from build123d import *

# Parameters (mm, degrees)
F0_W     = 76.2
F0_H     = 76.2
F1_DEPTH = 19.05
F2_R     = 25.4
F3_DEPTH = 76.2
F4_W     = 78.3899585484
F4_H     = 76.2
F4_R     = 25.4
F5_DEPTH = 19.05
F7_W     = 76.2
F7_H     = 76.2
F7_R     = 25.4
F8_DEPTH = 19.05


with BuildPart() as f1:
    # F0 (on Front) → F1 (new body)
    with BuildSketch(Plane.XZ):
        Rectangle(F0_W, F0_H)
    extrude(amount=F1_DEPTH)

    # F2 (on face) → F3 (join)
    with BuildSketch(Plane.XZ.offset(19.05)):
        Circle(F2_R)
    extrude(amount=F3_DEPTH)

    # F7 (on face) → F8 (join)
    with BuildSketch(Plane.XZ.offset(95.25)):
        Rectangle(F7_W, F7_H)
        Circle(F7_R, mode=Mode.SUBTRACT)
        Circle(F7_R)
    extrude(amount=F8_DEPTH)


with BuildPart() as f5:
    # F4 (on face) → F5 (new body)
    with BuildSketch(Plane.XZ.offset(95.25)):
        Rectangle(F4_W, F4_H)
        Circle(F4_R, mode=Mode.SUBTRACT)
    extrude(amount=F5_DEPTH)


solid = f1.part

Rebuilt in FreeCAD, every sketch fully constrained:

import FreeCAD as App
import Part
import Sketcher

V = App.Vector
Q = App.Units.Quantity

doc = App.newDocument("Part")
body = doc.addObject("PartDesign::Body", "Body")

sketch1 = doc.addObject("Sketcher::SketchObject", "Sketch")
body.addObject(sketch1)
sketch1.AttachmentSupport = (doc.XZ_Plane, [""])
sketch1.MapMode = "FlatFace"
sketch1.addGeometry(Part.LineSegment(V(-38, 38, 0), V(-38, -38, 0)), False)
sketch1.addGeometry(Part.LineSegment(V(-38, -38, 0), V(38, -38, 0)), False)
sketch1.addGeometry(Part.LineSegment(V(38, -38, 0), V(38, 38, 0)), False)
sketch1.addGeometry(Part.LineSegment(V(38, 38, 0), V(-38, 38, 0)), False)
sketch1.addConstraint(Sketcher.Constraint("Coincident", 0, 2, 1, 1))
sketch1.addConstraint(Sketcher.Constraint("Coincident", 1, 2, 2, 1))
sketch1.addConstraint(Sketcher.Constraint("Coincident", 2, 2, 3, 1))
sketch1.addConstraint(Sketcher.Constraint("Coincident", 3, 2, 0, 1))
sketch1.addConstraint(Sketcher.Constraint("Vertical", 0))
sketch1.addConstraint(Sketcher.Constraint("Horizontal", 1))
sketch1.addConstraint(Sketcher.Constraint("Vertical", 2))
sketch1.addConstraint(Sketcher.Constraint("Horizontal", 3))
sketch1.addConstraint(Sketcher.Constraint("Symmetric", 0, 2, 2, 2, -1, 1))
sketch1.addConstraint(Sketcher.Constraint("Equal", 3, 0))
sketch1.addConstraint(Sketcher.Constraint("DistanceX", 1, 1, 1, 2, Q("3 in")))
pad1 = doc.addObject("PartDesign::Pad", "Pad")
body.addObject(pad1)
pad1.Profile = sketch1
pad1.Length = Q("0.75 in")

sketch2 = doc.addObject("Sketcher::SketchObject", "Sketch001")
body.addObject(sketch2)
sketch2.AttachmentSupport = (doc.XZ_Plane, [""])
sketch2.MapMode = "FlatFace"
sketch2.AttachmentOffset = App.Placement(V(0, 0, 0.75 * 25.4), App.Rotation())
sketch2.addGeometry(Part.Circle(V(0, 0, 0), V(0, 0, 1), 25), False)
sketch2.addConstraint(Sketcher.Constraint("Coincident", 0, 3, -1, 1))
sketch2.addConstraint(Sketcher.Constraint("Diameter", 0, Q("2 in")))
pad2 = doc.addObject("PartDesign::Pad", "Pad001")
body.addObject(pad2)
pad2.Profile = sketch2
pad2.Length = Q("3 in")

sketch3 = doc.addObject("Sketcher::SketchObject", "Sketch002")
body.addObject(sketch3)
sketch3.AttachmentSupport = (doc.XZ_Plane, [""])
sketch3.MapMode = "FlatFace"
sketch3.AttachmentOffset = App.Placement(V(0, 0, 3.75 * 25.4), App.Rotation())
sketch3.addGeometry(Part.LineSegment(V(-38, 38, 0), V(-38, -38, 0)), False)
sketch3.addGeometry(Part.LineSegment(V(-38, -38, 0), V(38, -38, 0)), False)
sketch3.addGeometry(Part.LineSegment(V(38, -38, 0), V(38, 38, 0)), False)
sketch3.addGeometry(Part.LineSegment(V(38, 38, 0), V(-38, 38, 0)), False)
sketch3.addConstraint(Sketcher.Constraint("Coincident", 0, 2, 1, 1))
sketch3.addConstraint(Sketcher.Constraint("Coincident", 1, 2, 2, 1))
sketch3.addConstraint(Sketcher.Constraint("Coincident", 2, 2, 3, 1))
sketch3.addConstraint(Sketcher.Constraint("Coincident", 3, 2, 0, 1))
sketch3.addConstraint(Sketcher.Constraint("Vertical", 0))
sketch3.addConstraint(Sketcher.Constraint("Horizontal", 1))
sketch3.addConstraint(Sketcher.Constraint("Vertical", 2))
sketch3.addConstraint(Sketcher.Constraint("Horizontal", 3))
sketch3.addConstraint(Sketcher.Constraint("Symmetric", 0, 2, 2, 2, -1, 1))
sketch3.addConstraint(Sketcher.Constraint("Equal", 3, 0))
sketch3.addConstraint(Sketcher.Constraint("DistanceX", 1, 1, 1, 2, Q("3 in")))
pad3 = doc.addObject("PartDesign::Pad", "Pad002")
body.addObject(pad3)
pad3.Profile = sketch3
pad3.Length = Q("0.75 in")
body2 = doc.addObject("PartDesign::Body", "Body001")

sketch4 = doc.addObject("Sketcher::SketchObject", "Sketch003")
body2.addObject(sketch4)
sketch4.AttachmentSupport = (doc.getObject("XZ_Plane001"), [""])
sketch4.MapMode = "FlatFace"
sketch4.AttachmentOffset = App.Placement(V(0, 0, 3.75 * 25.4), App.Rotation())
sketch4.addGeometry(Part.LineSegment(V(-39, 38, 0), V(-39, -38, 0)), False)
sketch4.addGeometry(Part.LineSegment(V(-39, -38, 0), V(39, -38, 0)), False)
sketch4.addGeometry(Part.LineSegment(V(39, -38, 0), V(39, 38, 0)), False)
sketch4.addGeometry(Part.LineSegment(V(39, 38, 0), V(-39, 38, 0)), False)
sketch4.addGeometry(Part.Circle(V(0, 0, 0), V(0, 0, 1), 25), False)
sketch4.addConstraint(Sketcher.Constraint("Coincident", 0, 2, 1, 1))
sketch4.addConstraint(Sketcher.Constraint("Coincident", 1, 2, 2, 1))
sketch4.addConstraint(Sketcher.Constraint("Coincident", 2, 2, 3, 1))
sketch4.addConstraint(Sketcher.Constraint("Coincident", 3, 2, 0, 1))
sketch4.addConstraint(Sketcher.Constraint("Vertical", 0))
sketch4.addConstraint(Sketcher.Constraint("Horizontal", 1))
sketch4.addConstraint(Sketcher.Constraint("Vertical", 2))
sketch4.addConstraint(Sketcher.Constraint("Horizontal", 3))
sketch4.addConstraint(Sketcher.Constraint("Coincident", 4, 3, -1, 1))
sketch4.addConstraint(Sketcher.Constraint("Symmetric", 0, 2, 2, 2, -1, 1))
sketch4.addConstraint(Sketcher.Constraint("Diameter", 4, Q("2 in")))
sketch4.addConstraint(Sketcher.Constraint("DistanceY", 0, 2, 0, 1, Q("3 in")))
sketch4.addConstraint(Sketcher.Constraint("DistanceX", 1, 1, 1, 2, 78.389959))
pad4 = doc.addObject("PartDesign::Pad", "Pad003")
body2.addObject(pad4)
pad4.Profile = sketch4
pad4.Length = Q("0.75 in")
body2.Visibility = False

doc.recompute()
